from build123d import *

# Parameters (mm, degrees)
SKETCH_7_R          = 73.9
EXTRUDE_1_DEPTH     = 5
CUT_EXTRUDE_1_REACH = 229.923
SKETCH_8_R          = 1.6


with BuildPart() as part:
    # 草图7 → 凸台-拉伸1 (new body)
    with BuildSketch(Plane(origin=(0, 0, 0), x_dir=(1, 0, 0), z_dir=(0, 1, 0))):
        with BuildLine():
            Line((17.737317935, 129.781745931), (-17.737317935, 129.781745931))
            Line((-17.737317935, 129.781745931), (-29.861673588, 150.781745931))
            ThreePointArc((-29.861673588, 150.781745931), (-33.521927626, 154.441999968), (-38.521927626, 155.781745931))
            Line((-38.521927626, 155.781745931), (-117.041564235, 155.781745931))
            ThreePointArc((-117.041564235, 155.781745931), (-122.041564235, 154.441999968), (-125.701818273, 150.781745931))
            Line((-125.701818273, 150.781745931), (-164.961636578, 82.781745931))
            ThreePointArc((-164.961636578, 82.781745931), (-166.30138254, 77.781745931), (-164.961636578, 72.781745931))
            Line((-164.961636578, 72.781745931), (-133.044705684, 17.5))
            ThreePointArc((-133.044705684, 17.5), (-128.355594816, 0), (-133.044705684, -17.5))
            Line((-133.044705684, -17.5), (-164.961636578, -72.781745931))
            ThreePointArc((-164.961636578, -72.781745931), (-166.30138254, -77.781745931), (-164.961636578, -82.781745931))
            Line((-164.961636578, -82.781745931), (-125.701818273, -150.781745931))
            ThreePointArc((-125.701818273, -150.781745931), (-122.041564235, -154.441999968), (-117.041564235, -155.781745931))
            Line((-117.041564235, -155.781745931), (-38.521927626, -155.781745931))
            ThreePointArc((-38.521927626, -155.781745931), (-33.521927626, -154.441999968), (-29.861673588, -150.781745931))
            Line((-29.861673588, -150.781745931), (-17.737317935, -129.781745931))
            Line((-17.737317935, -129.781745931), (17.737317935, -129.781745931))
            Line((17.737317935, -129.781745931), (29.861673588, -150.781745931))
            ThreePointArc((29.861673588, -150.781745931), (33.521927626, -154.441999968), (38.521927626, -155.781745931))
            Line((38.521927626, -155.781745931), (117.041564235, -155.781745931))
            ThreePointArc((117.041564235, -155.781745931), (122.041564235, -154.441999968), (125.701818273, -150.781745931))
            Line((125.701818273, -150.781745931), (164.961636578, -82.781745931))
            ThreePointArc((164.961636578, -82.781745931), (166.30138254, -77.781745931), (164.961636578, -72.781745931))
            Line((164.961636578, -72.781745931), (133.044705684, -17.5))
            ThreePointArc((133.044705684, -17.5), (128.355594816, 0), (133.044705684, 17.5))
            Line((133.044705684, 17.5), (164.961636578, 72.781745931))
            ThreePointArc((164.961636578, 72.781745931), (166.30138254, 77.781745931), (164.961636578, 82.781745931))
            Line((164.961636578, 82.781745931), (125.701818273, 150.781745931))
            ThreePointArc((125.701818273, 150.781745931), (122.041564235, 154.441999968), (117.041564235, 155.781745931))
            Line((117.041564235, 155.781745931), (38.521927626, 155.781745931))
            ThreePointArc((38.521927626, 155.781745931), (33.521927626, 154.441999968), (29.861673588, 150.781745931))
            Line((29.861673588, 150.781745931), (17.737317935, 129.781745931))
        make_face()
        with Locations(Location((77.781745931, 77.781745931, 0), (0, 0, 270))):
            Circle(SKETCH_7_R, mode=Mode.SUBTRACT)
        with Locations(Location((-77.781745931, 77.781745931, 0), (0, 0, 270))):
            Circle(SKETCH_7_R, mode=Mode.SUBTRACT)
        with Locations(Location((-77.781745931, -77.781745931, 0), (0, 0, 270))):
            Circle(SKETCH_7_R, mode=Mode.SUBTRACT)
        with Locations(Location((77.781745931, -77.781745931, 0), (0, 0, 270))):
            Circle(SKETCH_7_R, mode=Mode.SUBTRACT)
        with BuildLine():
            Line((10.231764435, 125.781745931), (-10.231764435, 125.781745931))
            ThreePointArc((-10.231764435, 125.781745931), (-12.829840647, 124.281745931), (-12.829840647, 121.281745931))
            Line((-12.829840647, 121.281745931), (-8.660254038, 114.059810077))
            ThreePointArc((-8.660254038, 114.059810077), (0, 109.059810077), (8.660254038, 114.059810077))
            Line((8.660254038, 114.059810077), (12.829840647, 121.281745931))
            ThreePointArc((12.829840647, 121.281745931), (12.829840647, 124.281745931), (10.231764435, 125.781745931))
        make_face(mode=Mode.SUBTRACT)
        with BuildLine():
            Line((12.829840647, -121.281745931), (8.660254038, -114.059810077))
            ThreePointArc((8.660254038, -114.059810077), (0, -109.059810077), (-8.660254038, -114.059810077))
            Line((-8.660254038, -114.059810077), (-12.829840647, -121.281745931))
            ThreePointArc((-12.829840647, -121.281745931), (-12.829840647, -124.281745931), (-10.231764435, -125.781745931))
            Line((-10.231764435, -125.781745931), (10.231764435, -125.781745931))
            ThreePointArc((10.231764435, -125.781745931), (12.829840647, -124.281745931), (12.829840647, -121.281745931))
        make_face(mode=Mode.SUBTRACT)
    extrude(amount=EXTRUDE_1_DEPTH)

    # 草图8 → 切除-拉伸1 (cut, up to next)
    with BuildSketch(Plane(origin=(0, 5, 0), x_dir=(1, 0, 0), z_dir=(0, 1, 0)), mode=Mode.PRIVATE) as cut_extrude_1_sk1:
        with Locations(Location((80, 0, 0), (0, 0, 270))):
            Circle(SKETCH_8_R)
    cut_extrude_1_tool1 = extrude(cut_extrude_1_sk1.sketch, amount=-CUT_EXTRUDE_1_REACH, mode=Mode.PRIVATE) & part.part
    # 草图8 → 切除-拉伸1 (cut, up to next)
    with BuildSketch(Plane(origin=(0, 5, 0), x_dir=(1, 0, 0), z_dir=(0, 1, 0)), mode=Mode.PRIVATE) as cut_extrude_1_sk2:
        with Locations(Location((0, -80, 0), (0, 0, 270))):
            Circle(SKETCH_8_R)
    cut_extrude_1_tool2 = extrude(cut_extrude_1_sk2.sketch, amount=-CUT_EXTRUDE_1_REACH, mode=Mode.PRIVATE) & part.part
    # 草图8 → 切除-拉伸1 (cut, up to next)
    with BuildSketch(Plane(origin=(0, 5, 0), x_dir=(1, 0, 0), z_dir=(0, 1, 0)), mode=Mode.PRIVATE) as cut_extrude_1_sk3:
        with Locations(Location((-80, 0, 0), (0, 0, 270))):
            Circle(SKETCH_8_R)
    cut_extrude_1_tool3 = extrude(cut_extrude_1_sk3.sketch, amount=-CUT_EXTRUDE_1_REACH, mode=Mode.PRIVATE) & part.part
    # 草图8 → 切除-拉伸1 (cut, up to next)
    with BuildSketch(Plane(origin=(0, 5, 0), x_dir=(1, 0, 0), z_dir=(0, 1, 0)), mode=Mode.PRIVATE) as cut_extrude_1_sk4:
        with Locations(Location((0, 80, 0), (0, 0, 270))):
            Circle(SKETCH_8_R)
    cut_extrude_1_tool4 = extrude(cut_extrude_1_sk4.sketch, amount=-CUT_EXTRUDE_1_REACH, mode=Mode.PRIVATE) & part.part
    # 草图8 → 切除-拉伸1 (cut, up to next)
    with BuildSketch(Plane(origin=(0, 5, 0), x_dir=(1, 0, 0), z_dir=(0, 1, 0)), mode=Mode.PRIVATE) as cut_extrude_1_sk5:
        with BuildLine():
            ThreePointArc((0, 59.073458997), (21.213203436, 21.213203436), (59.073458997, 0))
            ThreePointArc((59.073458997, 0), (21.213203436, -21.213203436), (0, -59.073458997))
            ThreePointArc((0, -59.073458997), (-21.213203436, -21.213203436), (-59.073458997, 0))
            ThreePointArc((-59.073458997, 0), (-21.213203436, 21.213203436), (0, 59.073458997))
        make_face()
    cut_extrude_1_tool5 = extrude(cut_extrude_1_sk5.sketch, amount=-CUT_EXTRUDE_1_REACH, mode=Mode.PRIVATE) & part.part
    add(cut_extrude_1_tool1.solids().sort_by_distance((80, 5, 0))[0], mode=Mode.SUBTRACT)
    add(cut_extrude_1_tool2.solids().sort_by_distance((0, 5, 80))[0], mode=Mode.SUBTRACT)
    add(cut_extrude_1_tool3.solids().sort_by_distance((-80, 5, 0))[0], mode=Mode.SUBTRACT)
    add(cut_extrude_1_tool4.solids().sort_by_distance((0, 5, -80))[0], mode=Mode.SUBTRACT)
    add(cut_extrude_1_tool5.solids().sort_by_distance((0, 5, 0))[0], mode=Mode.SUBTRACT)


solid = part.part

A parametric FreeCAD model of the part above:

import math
import FreeCAD as App
import Part
import Sketcher
from FreeCAD import Vector
Q = App.Units.Quantity

doc = App.newDocument("Part")
params = doc.addObject("Spreadsheet::Sheet", "Params")
for row, (alias, value) in enumerate([
    ("sketch1_radius", "10 mm"),
    ("sketch1_radius2", "35 mm"),
    ("sketch1_radius3", "3 mm"),
    ("sketch1_diameter", "147.8 mm"),
    ("pad1_length", "5 mm"),
    ("sketch2_diameter", "3.2 mm"),
    ("sketch3_diameter", "3.2 mm"),
    ("sketch4_diameter", "3.2 mm"),
    ("sketch5_diameter", "3.2 mm"),
    ("sketch6_radius", "80 mm"),
], start=1):
    params.set(f"A{row}", alias)
    params.set(f"B{row}", "=" + value)
    params.setAlias(f"B{row}", alias)

body = doc.addObject("PartDesign::Body", "Body")

sketch1 = doc.addObject("Sketcher::SketchObject", "Sketch")
body.addObject(sketch1)
sketch1.AttachmentSupport = (doc.XZ_Plane, [""])
sketch1.MapMode = "FlatFace"
sketch1.addGeometry([
    Part.LineSegment(Vector(17.737318, -129.781746, 0), Vector(-17.737318, -129.781746, 0)),
    Part.LineSegment(Vector(-17.737318, -129.781746, 0), Vector(-29.861674, -150.781746, 0)),
    Part.ArcOfCircle(Part.Circle(Vector(-38.521928, -145.781746, 0), Vector(0, 0, 1), 10), math.radians(-90), math.radians(-30)),
    Part.LineSegment(Vector(-38.521928, -155.781746, 0), Vector(-117.041564, -155.781746, 0)),
    Part.ArcOfCircle(Part.Circle(Vector(-117.041564, -145.781746, 0), Vector(0, 0, 1), 10), math.radians(-150), math.radians(-90)),
    Part.LineSegment(Vector(-125.701818, -150.781746, 0), Vector(-164.961637, -82.781746, 0)),
    Part.ArcOfCircle(Part.Circle(Vector(-156.301383, -77.781746, 0), Vector(0, 0, 1), 10), math.radians(150), math.radians(210)),
    Part.LineSegment(Vector(-164.961637, -72.781746, 0), Vector(-133.044706, -17.5, 0)),
    Part.ArcOfCircle(Part.Circle(Vector(-163.355595, 0, 0), Vector(0, 0, 1), 35), math.radians(-30), math.radians(30)),
    Part.LineSegment(Vector(-133.044706, 17.5, 0), Vector(-164.961637, 72.781746, 0)),
    Part.ArcOfCircle(Part.Circle(Vector(-156.301383, 77.781746, 0), Vector(0, 0, 1), 10), math.radians(150), math.radians(210)),
    Part.LineSegment(Vector(-164.961637, 82.781746, 0), Vector(-125.701818, 150.781746, 0)),
    Part.ArcOfCircle(Part.Circle(Vector(-117.041564, 145.781746, 0), Vector(0, 0, 1), 10), math.radians(90), math.radians(150)),
    Part.LineSegment(Vector(-117.041564, 155.781746, 0), Vector(-38.521928, 155.781746, 0)),
    Part.ArcOfCircle(Part.Circle(Vector(-38.521928, 145.781746, 0), Vector(0, 0, 1), 10), math.radians(30), math.radians(90)),
    Part.LineSegment(Vector(-29.861674, 150.781746, 0), Vector(-17.737318, 129.781746, 0)),
    Part.LineSegment(Vector(-17.737318, 129.781746, 0), Vector(17.737318, 129.781746, 0)),
    Part.LineSegment(Vector(17.737318, 129.781746, 0), Vector(29.861674, 150.781746, 0)),
    Part.ArcOfCircle(Part.Circle(Vector(38.521928, 145.781746, 0), Vector(0, 0, 1), 10), math.radians(90), math.radians(150)),
    Part.LineSegment(Vector(38.521928, 155.781746, 0), Vector(117.041564, 155.781746, 0)),
    Part.ArcOfCircle(Part.Circle(Vector(117.041564, 145.781746, 0), Vector(0, 0, 1), 10), math.radians(30), math.radians(90)),
    Part.LineSegment(Vector(125.701818, 150.781746, 0), Vector(164.961637, 82.781746, 0)),
    Part.ArcOfCircle(Part.Circle(Vector(156.301383, 77.781746, 0), Vector(0, 0, 1), 10), math.radians(-30), math.radians(30)),
    Part.LineSegment(Vector(164.961637, 72.781746, 0), Vector(133.044706, 17.5, 0)),
    Part.ArcOfCircle(Part.Circle(Vector(163.355595, 0, 0), Vector(0, 0, 1), 35), math.radians(150), math.radians(210)),
    Part.LineSegment(Vector(133.044706, -17.5, 0), Vector(164.961637, -72.781746, 0)),
    Part.ArcOfCircle(Part.Circle(Vector(156.301383, -77.781746, 0), Vector(0, 0, 1), 10), math.radians(-30), math.radians(30)),
    Part.LineSegment(Vector(164.961637, -82.781746, 0), Vector(125.701818, -150.781746, 0)),
    Part.ArcOfCircle(Part.Circle(Vector(117.041564, -145.781746, 0), Vector(0, 0, 1), 10), math.radians(-90), math.radians(-30)),
    Part.LineSegment(Vector(117.041564, -155.781746, 0), Vector(38.521928, -155.781746, 0)),
    Part.ArcOfCircle(Part.Circle(Vector(38.521928, -145.781746, 0), Vector(0, 0, 1), 10), math.radians(-150), math.radians(-90)),
    Part.LineSegment(Vector(29.861674, -150.781746, 0), Vector(17.737318, -129.781746, 0)),
    Part.Circle(Vector(-77.781746, 77.781746, 0), Vector(0, 0, 1), 73.9),
    Part.LineSegment(Vector(8.660254, 114.05981, 0), Vector(12.829841, 121.281746, 0)),
    Part.ArcOfCircle(Part.Circle(Vector(10.231764, 122.781746, 0), Vector(0, 0, 1), 3), math.radians(-30), math.radians(90)),
    Part.LineSegment(Vector(10.231764, 125.781746, 0), Vector(-10.231764, 125.781746, 0)),
    Part.ArcOfCircle(Part.Circle(Vector(-10.231764, 122.781746, 0), Vector(0, 0, 1), 3), math.radians(90), math.radians(210)),
    Part.LineSegment(Vector(-12.829841, 121.281746, 0), Vector(-8.660254, 114.05981, 0)),
    Part.ArcOfCircle(Part.Circle(Vector(0, 119.05981, 0), Vector(0, 0, 1), 10), math.radians(-150), math.radians(-30)),
    Part.Circle(Vector(77.781746, 77.781746, 0), Vector(0, 0, 1), 73.9),
    Part.Circle(Vector(-77.781746, -77.781746, 0), Vector(0, 0, 1), 73.9),
    Part.LineSegment(Vector(-10.231764, -125.781746, 0), Vector(10.231764, -125.781746, 0)),
    Part.ArcOfCircle(Part.Circle(Vector(10.231764, -122.781746, 0), Vector(0, 0, 1), 3), math.radians(-90), math.radians(30)),
    Part.LineSegment(Vector(12.829841, -121.281746, 0), Vector(8.660254, -114.05981, 0)),
    Part.ArcOfCircle(Part.Circle(Vector(0, -119.05981, 0), Vector(0, 0, 1), 10), math.radians(30), math.radians(150)),
    Part.LineSegment(Vector(-8.660254, -114.05981, 0), Vector(-12.829841, -121.281746, 0)),
    Part.ArcOfCircle(Part.Circle(Vector(-10.231764, -122.781746, 0), Vector(0, 0, 1), 3), math.radians(150), math.radians(270)),
    Part.Circle(Vector(77.781746, -77.781746, 0), Vector(0, 0, 1), 73.9),
], False)
sketch1.addConstraint([
    Sketcher.Constraint("Coincident", 0, 2, 1, 1),
    Sketcher.Constraint("Tangent", 1, 2, 2, 2),
    Sketcher.Constraint("Tangent", 2, 1, 3, 1),
    Sketcher.Constraint("Tangent", 3, 2, 4, 2),
    Sketcher.Constraint("Tangent", 4, 1, 5, 1),
    Sketcher.Constraint("Tangent", 5, 2, 6, 2),
    Sketcher.Constraint("Tangent", 6, 1, 7, 1),
    Sketcher.Constraint("Tangent", 7, 2, 8, 1),
    Sketcher.Constraint("Tangent", 8, 2, 9, 1),
    Sketcher.Constraint("Tangent", 9, 2, 10, 2),
    Sketcher.Constraint("Tangent", 10, 1, 11, 1),
    Sketcher.Constraint("Tangent", 11, 2, 12, 2),
    Sketcher.Constraint("Tangent", 12, 1, 13, 1),
    Sketcher.Constraint("Tangent", 13, 2, 14, 2),
    Sketcher.Constraint("Tangent", 14, 1, 15, 1),
    Sketcher.Constraint("Coincident", 15, 2, 16, 1),
    Sketcher.Constraint("Coincident", 16, 2, 17, 1),
    Sketcher.Constraint("Tangent", 17, 2, 18, 2),
    Sketcher.Constraint("Tangent", 18, 1, 19, 1),
    Sketcher.Constraint("Tangent", 19, 2, 20, 2),
    Sketcher.Constraint("Tangent", 20, 1, 21, 1),
    Sketcher.Constraint("Tangent", 21, 2, 22, 2),
    Sketcher.Constraint("Tangent", 22, 1, 23, 1),
    Sketcher.Constraint("Tangent", 23, 2, 24, 1),
    Sketcher.Constraint("Tangent", 24, 2, 25, 1),
    Sketcher.Constraint("Tangent", 25, 2, 26, 2),
    Sketcher.Constraint("Tangent", 26, 1, 27, 1),
    Sketcher.Constraint("Tangent", 27, 2, 28, 2),
    Sketcher.Constraint("Tangent", 28, 1, 29, 1),
    Sketcher.Constraint("Tangent", 29, 2, 30, 2),
    Sketcher.Constraint("Tangent", 30, 1, 31, 1),
    Sketcher.Constraint("Coincident", 31, 2, 0, 1),
    Sketcher.Constraint("Tangent", 33, 2, 34, 1),
    Sketcher.Constraint("Tangent", 34, 2, 35, 1),
    Sketcher.Constraint("Tangent", 35, 2, 36, 1),
    Sketcher.Constraint("Tangent", 36, 2, 37, 1),
    Sketcher.Constraint("Tangent", 37, 2, 38, 1),
    Sketcher.Constraint("Tangent", 38, 2, 33, 1),
    Sketcher.Constraint("Tangent", 41, 2, 42, 1),
    Sketcher.Constraint("Tangent", 42, 2, 43, 1),
    Sketcher.Constraint("Tangent", 43, 2, 44, 1),
    Sketcher.Constraint("Tangent", 44, 2, 45, 1),
    Sketcher.Constraint("Tangent", 45, 2, 46, 1),
    Sketcher.Constraint("Tangent", 46, 2, 41, 1),
    Sketcher.Constraint("Horizontal", 0),
    Sketcher.Constraint("Horizontal", 3),
    Sketcher.Constraint("Horizontal", 13),
    Sketcher.Constraint("Horizontal", 16),
    Sketcher.Constraint("Horizontal", 19),
    Sketcher.Constraint("Horizontal", 29),
    Sketcher.Constraint("Horizontal", 35),
    Sketcher.Constraint("Horizontal", 41),
    Sketcher.Constraint("Equal", 2, 4),
    Sketcher.Constraint("Equal", 4, 6),
    Sketcher.Constraint("Equal", 6, 10),
    Sketcher.Constraint("Equal", 10, 12),
    Sketcher.Constraint("Equal", 12, 14),
    Sketcher.Constraint("Equal", 14, 18),
    Sketcher.Constraint("Equal", 18, 20),
    Sketcher.Constraint("Equal", 20, 22),
    Sketcher.Constraint("Equal", 8, 24),
    Sketcher.Constraint("Equal", 22, 26),
    Sketcher.Constraint("Equal", 26, 28),
    Sketcher.Constraint("Equal", 28, 30),
    Sketcher.Constraint("Equal", 34, 36),
    Sketcher.Constraint("Equal", 30, 38),
    Sketcher.Constraint("Equal", 32, 39),
    Sketcher.Constraint("Equal", 39, 40),
    Sketcher.Constraint("Equal", 36, 42),
    Sketcher.Constraint("Equal", 38, 44),
    Sketcher.Constraint("Equal", 42, 46),
    Sketcher.Constraint("Equal", 40, 47),
    Sketcher.Constraint("Symmetric", 2, 3, 18, 3, -1, 1),
    Sketcher.Constraint("Symmetric", 6, 3, 22, 3, -1, 1),
    Sketcher.Constraint("Symmetric", 8, 3, 24, 3, -1, 1),
    Sketcher.Constraint("Symmetric", 10, 3, 26, 3, -1, 1),
    Sketcher.Constraint("Symmetric", 12, 3, 28, 3, -1, 1),
    Sketcher.Constraint("Symmetric", 39, 3, 40, 3, -1, 1),
    Sketcher.Constraint("Symmetric", 36, 3, 42, 3, -1, 1),
    Sketcher.Constraint("Symmetric", 38, 3, 44, 3, -1, 1),
    Sketcher.Constraint("Symmetric", 32, 3, 47, 3, -1, 1),
    Sketcher.Constraint("Symmetric", 0, 2, 16, 2, -1, 1),
    Sketcher.Constraint("Symmetric", 14, 1, 30, 1, -1, 1),
    Sketcher.Constraint("Symmetric", 14, 3, 18, 3, -2),
    Sketcher.Constraint("Symmetric", 10, 3, 22, 3, -2),
    Sketcher.Constraint("Symmetric", 32, 3, 39, 3, -2),
    Sketcher.Constraint("Symmetric", 33, 2, 36, 2, -2),
    Sketcher.Constraint("PointOnObject", 8, 3, -1),
    Sketcher.Constraint("Parallel", 1, 7),
    Sketcher.Constraint("Parallel", 5, 9),
    Sketcher.Constraint("Parallel", 7, 11),
    Sketcher.Constraint("Parallel", 9, 15),
    Sketcher.Constraint("Parallel", 15, 21),
    Sketcher.Constraint("Parallel", 27, 33),
    Sketcher.Constraint("Parallel", 33, 45),
    Sketcher.Constraint("Horizontal", 22, 3, 32, 3),
    Sketcher.Constraint("Radius", 2, 10.0),
    Sketcher.Constraint("Radius", 8, 35.0),
    Sketcher.Constraint("Radius", 34, 3.0),
    Sketcher.Constraint("Diameter", 32, 147.8),
    Sketcher.Constraint("Angle", 1, Q("-120 deg")),
    Sketcher.Constraint("DistanceX", 35, 2, 35, 1, 20.463529),
    Sketcher.Constraint("Distance", 1, 24.248711),
    Sketcher.Constraint("Distance", 7, 63.833862),
    Sketcher.Constraint("DistanceX", 0, 2, 0, 1, 35.474636),
    Sketcher.Constraint("DistanceX", 3, 2, 3, 1, 78.519637),
    Sketcher.Constraint("DistanceY", -1, 1, 38, 3, 119.05981),
    Sketcher.Constraint("Distance", 5, 78.519637),
    Sketcher.Constraint("DistanceX", 32, 3, -1, 1, 77.781746),
])
sketch1.setExpression("Constraints[96]", "Params.sketch1_radius")
sketch1.setExpression("Constraints[97]", "Params.sketch1_radius2")
sketch1.setExpression("Constraints[98]", "Params.sketch1_radius3")
sketch1.setExpression("Constraints[99]", "Params.sketch1_diameter")
pad1 = doc.addObject("PartDesign::Pad", "Pad")
body.addObject(pad1)
pad1.Profile = sketch1
pad1.setExpression("Length", "Params.pad1_length")
pad1.Reversed = True

sketch2 = doc.addObject("Sketcher::SketchObject", "Sketch001")
body.addObject(sketch2)
sketch2.AttachmentSupport = (doc.XZ_Plane, [""])
sketch2.MapMode = "FlatFace"
sketch2.AttachmentOffset = App.Placement(Vector(0, 0, -5), App.Rotation())
sketch2.addGeometry(Part.Circle(Vector(80, 0, 0), Vector(0, 0, 1), 1.6), False)
sketch2.addConstraint([
    Sketcher.Constraint("PointOnObject", 0, 3, -1),
    Sketcher.Constraint("Diameter", 0, 3.2),
    Sketcher.Constraint("DistanceX", -1, 1, 0, 3, 80.0),
])
sketch2.setExpression("Constraints[1]", "Params.sketch2_diameter")
pocket1 = doc.addObject("PartDesign::Pocket", "Pocket")
body.addObject(pocket1)
pocket1.Profile = sketch2
pocket1.Type = "UpToFirst"
pocket1.Reversed = True

sketch3 = doc.addObject("Sketcher::SketchObject", "Sketch002")
body.addObject(sketch3)
sketch3.AttachmentSupport = (doc.XZ_Plane, [""])
sketch3.MapMode = "FlatFace"
sketch3.AttachmentOffset = App.Placement(Vector(0, 0, -5), App.Rotation())
sketch3.addGeometry(Part.Circle(Vector(0, 80, 0), Vector(0, 0, 1), 1.6), False)
sketch3.addConstraint([
    Sketcher.Constraint("PointOnObject", 0, 3, -2),
    Sketcher.Constraint("Diameter", 0, 3.2),
    Sketcher.Constraint("DistanceY", -1, 1, 0, 3, 80.0),
])
sketch3.setExpression("Constraints[1]", "Params.sketch3_diameter")
pocket2 = doc.addObject("PartDesign::Pocket", "Pocket001")
body.addObject(pocket2)
pocket2.Profile = sketch3
pocket2.Type = "UpToFirst"
pocket2.Reversed = True

sketch4 = doc.addObject("Sketcher::SketchObject", "Sketch003")
body.addObject(sketch4)
sketch4.AttachmentSupport = (doc.XZ_Plane, [""])
sketch4.MapMode = "FlatFace"
sketch4.AttachmentOffset = App.Placement(Vector(0, 0, -5), App.Rotation())
sketch4.addGeometry(Part.Circle(Vector(-80, 0, 0), Vector(0, 0, 1), 1.6), False)
sketch4.addConstraint([
    Sketcher.Constraint("PointOnObject", 0, 3, -1),
    Sketcher.Constraint("Diameter", 0, 3.2),
    Sketcher.Constraint("DistanceX", 0, 3, -1, 1, 80.0),
])
sketch4.setExpression("Constraints[1]", "Params.sketch4_diameter")
pocket3 = doc.addObject("PartDesign::Pocket", "Pocket002")
body.addObject(pocket3)
pocket3.Profile = sketch4
pocket3.Type = "UpToFirst"
pocket3.Reversed = True

sketch5 = doc.addObject("Sketcher::SketchObject", "Sketch004")
body.addObject(sketch5)
sketch5.AttachmentSupport = (doc.XZ_Plane, [""])
sketch5.MapMode = "FlatFace"
sketch5.AttachmentOffset = App.Placement(Vector(0, 0, -5), App.Rotation())
sketch5.addGeometry(Part.Circle(Vector(0, -80, 0), Vector(0, 0, 1), 1.6), False)
sketch5.addConstraint([
    Sketcher.Constraint("PointOnObject", 0, 3, -2),
    Sketcher.Constraint("Diameter", 0, 3.2),
    Sketcher.Constraint("DistanceY", 0, 3, -1, 1, 80.0),
])
sketch5.setExpression("Constraints[1]", "Params.sketch5_diameter")
pocket4 = doc.addObject("PartDesign::Pocket", "Pocket003")
body.addObject(pocket4)
pocket4.Profile = sketch5
pocket4.Type = "UpToFirst"
pocket4.Reversed = True

sketch6 = doc.addObject("Sketcher::SketchObject", "Sketch005")
body.addObject(sketch6)
sketch6.AttachmentSupport = (doc.XZ_Plane, [""])
sketch6.MapMode = "FlatFace"
sketch6.AttachmentOffset = App.Placement(Vector(0, 0, -5), App.Rotation())
sketch6.addGeometry([
    Part.ArcOfCircle(Part.Circle(Vector(77.781746, -77.781746, 0), Vector(0, 0, 1), 80), math.radians(103.524055), math.radians(166.475945)),
    Part.ArcOfCircle(Part.Circle(Vector(-77.781746, -77.781746, 0), Vector(0, 0, 1), 80), math.radians(13.524055), math.radians(76.475945)),
    Part.ArcOfCircle(Part.Circle(Vector(-77.781746, 77.781746, 0), Vector(0, 0, 1), 80), math.radians(-76.475945), math.radians(-13.524055)),
    Part.ArcOfCircle(Part.Circle(Vector(77.781746, 77.781746, 0), Vector(0, 0, 1), 80), math.radians(-166.475945), math.radians(-103.524055)),
], False)
sketch6.addConstraint([
    Sketcher.Constraint("Coincident", 0, 2, 1, 1),
    Sketcher.Constraint("Coincident", 1, 2, 2, 1),
    Sketcher.Constraint("Coincident", 2, 2, 3, 1),
    Sketcher.Constraint("Coincident", 3, 2, 0, 1),
    Sketcher.Constraint("Equal", 0, 1),
    Sketcher.Constraint("Equal", 1, 2),
    Sketcher.Constraint("Equal", 2, 3),
    Sketcher.Constraint("Symmetric", 0, 3, 2, 3, -1, 1),
    Sketcher.Constraint("Symmetric", 1, 3, 3, 3, -1, 1),
    Sketcher.Constraint("Symmetric", 0, 3, 1, 3, -2),
    Sketcher.Constraint("Radius", 0, 80.0),
    Sketcher.Constraint("DistanceY", 0, 2, -1, 1, 59.073459),
    Sketcher.Constraint("DistanceX", 1, 2, -1, 1, 59.073459),
])
sketch6.setExpression("Constraints[10]", "Params.sketch6_radius")
pocket5 = doc.addObject("PartDesign::Pocket", "Pocket004")
body.addObject(pocket5)
pocket5.Profile = sketch6
pocket5.Type = "UpToFirst"
pocket5.Reversed = True

doc.recompute()
